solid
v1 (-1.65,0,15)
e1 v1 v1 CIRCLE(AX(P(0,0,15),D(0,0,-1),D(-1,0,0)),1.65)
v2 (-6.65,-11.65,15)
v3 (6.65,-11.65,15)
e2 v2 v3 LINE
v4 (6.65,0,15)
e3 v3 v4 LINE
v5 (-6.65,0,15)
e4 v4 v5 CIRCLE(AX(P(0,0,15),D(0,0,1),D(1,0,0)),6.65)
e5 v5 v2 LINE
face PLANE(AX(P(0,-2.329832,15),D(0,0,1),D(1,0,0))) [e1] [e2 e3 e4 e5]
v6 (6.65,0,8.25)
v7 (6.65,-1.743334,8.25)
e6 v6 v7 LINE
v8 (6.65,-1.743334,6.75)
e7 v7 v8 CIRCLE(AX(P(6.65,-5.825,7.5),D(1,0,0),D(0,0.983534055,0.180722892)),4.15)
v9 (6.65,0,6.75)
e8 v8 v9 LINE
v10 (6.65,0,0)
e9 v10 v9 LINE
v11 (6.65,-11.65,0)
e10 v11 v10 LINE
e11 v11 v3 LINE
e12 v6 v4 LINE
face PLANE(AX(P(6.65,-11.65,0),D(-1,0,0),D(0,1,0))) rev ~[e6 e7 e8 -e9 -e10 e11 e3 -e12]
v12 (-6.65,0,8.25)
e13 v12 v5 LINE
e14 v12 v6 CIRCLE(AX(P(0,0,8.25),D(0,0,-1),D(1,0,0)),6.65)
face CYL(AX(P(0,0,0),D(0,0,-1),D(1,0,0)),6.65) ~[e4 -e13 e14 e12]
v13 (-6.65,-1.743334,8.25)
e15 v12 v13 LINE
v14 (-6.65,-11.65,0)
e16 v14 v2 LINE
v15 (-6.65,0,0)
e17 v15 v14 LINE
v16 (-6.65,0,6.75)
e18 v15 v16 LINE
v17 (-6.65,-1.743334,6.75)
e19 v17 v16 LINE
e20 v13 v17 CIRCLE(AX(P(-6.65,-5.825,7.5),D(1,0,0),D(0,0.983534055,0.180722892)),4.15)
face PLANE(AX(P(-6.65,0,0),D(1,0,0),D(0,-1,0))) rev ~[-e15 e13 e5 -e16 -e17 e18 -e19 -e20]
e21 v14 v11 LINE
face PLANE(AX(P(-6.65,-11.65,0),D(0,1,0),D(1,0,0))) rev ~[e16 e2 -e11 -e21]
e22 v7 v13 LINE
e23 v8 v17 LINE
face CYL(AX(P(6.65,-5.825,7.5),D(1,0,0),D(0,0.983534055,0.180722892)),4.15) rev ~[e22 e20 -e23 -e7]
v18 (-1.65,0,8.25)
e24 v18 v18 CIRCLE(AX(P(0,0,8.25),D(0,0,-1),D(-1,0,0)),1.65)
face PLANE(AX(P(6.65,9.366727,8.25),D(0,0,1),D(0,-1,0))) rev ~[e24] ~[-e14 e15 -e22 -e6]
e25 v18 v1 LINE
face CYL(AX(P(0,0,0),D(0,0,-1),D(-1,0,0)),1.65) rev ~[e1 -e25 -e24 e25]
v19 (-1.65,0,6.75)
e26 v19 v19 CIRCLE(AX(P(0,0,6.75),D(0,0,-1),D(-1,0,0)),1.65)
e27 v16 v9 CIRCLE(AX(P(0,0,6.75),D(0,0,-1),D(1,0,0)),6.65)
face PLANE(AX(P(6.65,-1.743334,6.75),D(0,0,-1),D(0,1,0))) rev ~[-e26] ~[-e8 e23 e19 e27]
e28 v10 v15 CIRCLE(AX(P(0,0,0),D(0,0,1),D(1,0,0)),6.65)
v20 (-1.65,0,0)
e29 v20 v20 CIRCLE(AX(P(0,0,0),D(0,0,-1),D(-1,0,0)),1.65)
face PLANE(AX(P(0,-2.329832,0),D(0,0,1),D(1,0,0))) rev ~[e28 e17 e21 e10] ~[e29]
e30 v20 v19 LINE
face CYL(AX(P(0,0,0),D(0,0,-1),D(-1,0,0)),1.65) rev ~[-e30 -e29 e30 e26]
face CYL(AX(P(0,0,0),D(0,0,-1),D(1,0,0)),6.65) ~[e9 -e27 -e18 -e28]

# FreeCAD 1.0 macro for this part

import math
import FreeCAD as App
import Part
import Sketcher

doc = App.newDocument("Part")
body = doc.addObject("PartDesign::Body", "Body")

# Sketch on XY plane
sketch1 = body.newObject("Sketcher::SketchObject", "Sketch")
sketch1.AttachmentSupport = (doc.getObject("XY_Plane"), [""])
sketch1.MapMode = "FlatFace"
sketch1.addGeometry(Part.ArcOfCircle(Part.Circle(App.Vector(0, 0, 0), App.Vector(0, 0, 1), 6.7), math.radians(0), math.radians(180)), False)
sketch1.addGeometry(Part.LineSegment(App.Vector(-6.7, 0, 0), App.Vector(-6.7, -11.7, 0)), False)
sketch1.addGeometry(Part.LineSegment(App.Vector(-6.7, -11.7, 0), App.Vector(6.7, -11.7, 0)), False)
sketch1.addGeometry(Part.LineSegment(App.Vector(6.7, -11.7, 0), App.Vector(6.7, 0, 0)), False)
sketch1.addGeometry(Part.Circle(App.Vector(0, 0, 0), App.Vector(0, 0, 1), 1.6), False)
sketch1.addConstraint(Sketcher.Constraint("Tangent", 0, 2, 1, 1))
sketch1.addConstraint(Sketcher.Constraint("Coincident", 1, 2, 2, 1))
sketch1.addConstraint(Sketcher.Constraint("Coincident", 2, 2, 3, 1))
sketch1.addConstraint(Sketcher.Constraint("Tangent", 3, 2, 0, 1))
sketch1.addConstraint(Sketcher.Constraint("Vertical", 1))
sketch1.addConstraint(Sketcher.Constraint("Horizontal", 2))
sketch1.addConstraint(Sketcher.Constraint("Vertical", 3))
sketch1.addConstraint(Sketcher.Constraint("Coincident", 0, 3, -1, 1))
sketch1.addConstraint(Sketcher.Constraint("Coincident", 4, 3, -1, 1))
sketch1.addConstraint(Sketcher.Constraint("Diameter", 4, 3.3))
sketch1.addConstraint(Sketcher.Constraint("Radius", 0, 6.65))
sketch1.addConstraint(Sketcher.Constraint("DistanceY", 1, 2, 1, 1, 11.65))
pad1 = body.newObject("PartDesign::Pad", "Pad")
pad1.Profile = sketch1
pad1.Length = 15

# Sketch on YZ plane
sketch2 = body.newObject("Sketcher::SketchObject", "Sketch001")
sketch2.AttachmentSupport = (doc.getObject("YZ_Plane"), [""])
sketch2.MapMode = "FlatFace"
sketch2.AttachmentOffset = App.Placement(App.Vector(0, 0, 6.65), App.Rotation())
sketch2.addGeometry(Part.LineSegment(App.Vector(-1.7, 6.8, 0), App.Vector(9.4, 6.8, 0)), False)
sketch2.addGeometry(Part.LineSegment(App.Vector(9.4, 6.8, 0), App.Vector(9.4, 8.2, 0)), False)
sketch2.addGeometry(Part.LineSegment(App.Vector(9.4, 8.2, 0), App.Vector(-1.7, 8.2, 0)), False)
sketch2.addGeometry(Part.ArcOfCircle(Part.Circle(App.Vector(-5.8, 7.5, 0), App.Vector(0, 0, 1), 4.2), math.radians(10), math.radians(350)), False)
sketch2.addConstraint(Sketcher.Constraint("Coincident", 0, 2, 1, 1))
sketch2.addConstraint(Sketcher.Constraint("Coincident", 1, 2, 2, 1))
sketch2.addConstraint(Sketcher.Constraint("Coincident", 2, 2, 3, 1))
sketch2.addConstraint(Sketcher.Constraint("Coincident", 3, 2, 0, 1))
sketch2.addConstraint(Sketcher.Constraint("Horizontal", 0))
sketch2.addConstraint(Sketcher.Constraint("Vertical", 1))
sketch2.addConstraint(Sketcher.Constraint("Horizontal", 2))
sketch2.addConstraint(Sketcher.Constraint("Vertical", 2, 2, 3, 2))
sketch2.addConstraint(Sketcher.Constraint("Radius", 3, 4.15))
sketch2.addConstraint(Sketcher.Constraint("DistanceY", 1, 1, 1, 2, 1.5))
sketch2.addConstraint(Sketcher.Constraint("DistanceY", -1, 1, 3, 3, 7.5))
sketch2.addConstraint(Sketcher.Constraint("DistanceX", 3, 3, -1, 1, 5.825))
sketch2.addConstraint(Sketcher.Constraint("DistanceX", 0, 1, 0, 2, 11.110061))
pocket1 = body.newObject("PartDesign::Pocket", "Pocket")
pocket1.Profile = sketch2
pocket1.Type = "ThroughAll"

doc.recompute()
